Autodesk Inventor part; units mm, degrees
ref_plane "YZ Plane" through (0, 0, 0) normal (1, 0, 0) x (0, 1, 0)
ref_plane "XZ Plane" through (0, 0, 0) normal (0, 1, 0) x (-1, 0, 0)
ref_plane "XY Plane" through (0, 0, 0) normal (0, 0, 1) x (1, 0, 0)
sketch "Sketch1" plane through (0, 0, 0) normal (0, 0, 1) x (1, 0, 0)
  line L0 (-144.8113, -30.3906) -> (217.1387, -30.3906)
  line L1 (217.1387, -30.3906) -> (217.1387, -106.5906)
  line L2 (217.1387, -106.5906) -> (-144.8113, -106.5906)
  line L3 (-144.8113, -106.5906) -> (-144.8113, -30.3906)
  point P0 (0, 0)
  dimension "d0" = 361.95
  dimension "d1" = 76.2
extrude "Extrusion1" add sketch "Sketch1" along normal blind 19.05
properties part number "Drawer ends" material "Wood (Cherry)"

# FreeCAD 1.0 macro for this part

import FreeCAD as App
import Part
import Sketcher

V = App.Vector
Q = App.Units.Quantity


def add_polygon(sketch, points):
    """Adds a closed chain of lines whose ends are joined by coincident constraints."""
    first, n = sketch.GeometryCount, len(points)
    for a, b in zip(points, points[1:] + points[:1]):
        sketch.addGeometry(Part.LineSegment(App.Vector(*a, 0), App.Vector(*b, 0)), False)
    for i in range(n):
        sketch.addConstraint(Sketcher.Constraint("Coincident", first + i, 2, first + (i + 1) % n, 1))

doc = App.newDocument("Part")
body = doc.addObject("PartDesign::Body", "Body")

# Sketch on XY plane
sketch1 = doc.addObject("Sketcher::SketchObject", "Sketch")
body.addObject(sketch1)
sketch1.AttachmentSupport = (doc.XY_Plane, [""])
sketch1.MapMode = "FlatFace"
add_polygon(sketch1, [(217.1387, -30.3906), (-144.8113, -30.3906), (-144.8113, -106.5906), (217.1387, -106.5906)])  # lines 0-3
sketch1.addConstraint([
    Sketcher.Constraint("Horizontal", 0),
    Sketcher.Constraint("Vertical", 1),
    Sketcher.Constraint("Horizontal", 2),
    Sketcher.Constraint("Vertical", 3),
    Sketcher.Constraint("DistanceY", 1, 2, 1, 1, Q("3 in")),
    Sketcher.Constraint("DistanceX", 0, 2, 0, 1, Q("14.25 in")),
    Sketcher.Constraint("DistanceX", 0, 2, -1, 1, Q("144.8113 mm")),
    Sketcher.Constraint("DistanceY", 0, 2, -1, 1, Q("30.3906 mm")),
])
pad1 = doc.addObject("PartDesign::Pad", "Pad")
body.addObject(pad1)
pad1.Profile = sketch1
pad1.Length = Q("0.75 in")

doc.recompute()
